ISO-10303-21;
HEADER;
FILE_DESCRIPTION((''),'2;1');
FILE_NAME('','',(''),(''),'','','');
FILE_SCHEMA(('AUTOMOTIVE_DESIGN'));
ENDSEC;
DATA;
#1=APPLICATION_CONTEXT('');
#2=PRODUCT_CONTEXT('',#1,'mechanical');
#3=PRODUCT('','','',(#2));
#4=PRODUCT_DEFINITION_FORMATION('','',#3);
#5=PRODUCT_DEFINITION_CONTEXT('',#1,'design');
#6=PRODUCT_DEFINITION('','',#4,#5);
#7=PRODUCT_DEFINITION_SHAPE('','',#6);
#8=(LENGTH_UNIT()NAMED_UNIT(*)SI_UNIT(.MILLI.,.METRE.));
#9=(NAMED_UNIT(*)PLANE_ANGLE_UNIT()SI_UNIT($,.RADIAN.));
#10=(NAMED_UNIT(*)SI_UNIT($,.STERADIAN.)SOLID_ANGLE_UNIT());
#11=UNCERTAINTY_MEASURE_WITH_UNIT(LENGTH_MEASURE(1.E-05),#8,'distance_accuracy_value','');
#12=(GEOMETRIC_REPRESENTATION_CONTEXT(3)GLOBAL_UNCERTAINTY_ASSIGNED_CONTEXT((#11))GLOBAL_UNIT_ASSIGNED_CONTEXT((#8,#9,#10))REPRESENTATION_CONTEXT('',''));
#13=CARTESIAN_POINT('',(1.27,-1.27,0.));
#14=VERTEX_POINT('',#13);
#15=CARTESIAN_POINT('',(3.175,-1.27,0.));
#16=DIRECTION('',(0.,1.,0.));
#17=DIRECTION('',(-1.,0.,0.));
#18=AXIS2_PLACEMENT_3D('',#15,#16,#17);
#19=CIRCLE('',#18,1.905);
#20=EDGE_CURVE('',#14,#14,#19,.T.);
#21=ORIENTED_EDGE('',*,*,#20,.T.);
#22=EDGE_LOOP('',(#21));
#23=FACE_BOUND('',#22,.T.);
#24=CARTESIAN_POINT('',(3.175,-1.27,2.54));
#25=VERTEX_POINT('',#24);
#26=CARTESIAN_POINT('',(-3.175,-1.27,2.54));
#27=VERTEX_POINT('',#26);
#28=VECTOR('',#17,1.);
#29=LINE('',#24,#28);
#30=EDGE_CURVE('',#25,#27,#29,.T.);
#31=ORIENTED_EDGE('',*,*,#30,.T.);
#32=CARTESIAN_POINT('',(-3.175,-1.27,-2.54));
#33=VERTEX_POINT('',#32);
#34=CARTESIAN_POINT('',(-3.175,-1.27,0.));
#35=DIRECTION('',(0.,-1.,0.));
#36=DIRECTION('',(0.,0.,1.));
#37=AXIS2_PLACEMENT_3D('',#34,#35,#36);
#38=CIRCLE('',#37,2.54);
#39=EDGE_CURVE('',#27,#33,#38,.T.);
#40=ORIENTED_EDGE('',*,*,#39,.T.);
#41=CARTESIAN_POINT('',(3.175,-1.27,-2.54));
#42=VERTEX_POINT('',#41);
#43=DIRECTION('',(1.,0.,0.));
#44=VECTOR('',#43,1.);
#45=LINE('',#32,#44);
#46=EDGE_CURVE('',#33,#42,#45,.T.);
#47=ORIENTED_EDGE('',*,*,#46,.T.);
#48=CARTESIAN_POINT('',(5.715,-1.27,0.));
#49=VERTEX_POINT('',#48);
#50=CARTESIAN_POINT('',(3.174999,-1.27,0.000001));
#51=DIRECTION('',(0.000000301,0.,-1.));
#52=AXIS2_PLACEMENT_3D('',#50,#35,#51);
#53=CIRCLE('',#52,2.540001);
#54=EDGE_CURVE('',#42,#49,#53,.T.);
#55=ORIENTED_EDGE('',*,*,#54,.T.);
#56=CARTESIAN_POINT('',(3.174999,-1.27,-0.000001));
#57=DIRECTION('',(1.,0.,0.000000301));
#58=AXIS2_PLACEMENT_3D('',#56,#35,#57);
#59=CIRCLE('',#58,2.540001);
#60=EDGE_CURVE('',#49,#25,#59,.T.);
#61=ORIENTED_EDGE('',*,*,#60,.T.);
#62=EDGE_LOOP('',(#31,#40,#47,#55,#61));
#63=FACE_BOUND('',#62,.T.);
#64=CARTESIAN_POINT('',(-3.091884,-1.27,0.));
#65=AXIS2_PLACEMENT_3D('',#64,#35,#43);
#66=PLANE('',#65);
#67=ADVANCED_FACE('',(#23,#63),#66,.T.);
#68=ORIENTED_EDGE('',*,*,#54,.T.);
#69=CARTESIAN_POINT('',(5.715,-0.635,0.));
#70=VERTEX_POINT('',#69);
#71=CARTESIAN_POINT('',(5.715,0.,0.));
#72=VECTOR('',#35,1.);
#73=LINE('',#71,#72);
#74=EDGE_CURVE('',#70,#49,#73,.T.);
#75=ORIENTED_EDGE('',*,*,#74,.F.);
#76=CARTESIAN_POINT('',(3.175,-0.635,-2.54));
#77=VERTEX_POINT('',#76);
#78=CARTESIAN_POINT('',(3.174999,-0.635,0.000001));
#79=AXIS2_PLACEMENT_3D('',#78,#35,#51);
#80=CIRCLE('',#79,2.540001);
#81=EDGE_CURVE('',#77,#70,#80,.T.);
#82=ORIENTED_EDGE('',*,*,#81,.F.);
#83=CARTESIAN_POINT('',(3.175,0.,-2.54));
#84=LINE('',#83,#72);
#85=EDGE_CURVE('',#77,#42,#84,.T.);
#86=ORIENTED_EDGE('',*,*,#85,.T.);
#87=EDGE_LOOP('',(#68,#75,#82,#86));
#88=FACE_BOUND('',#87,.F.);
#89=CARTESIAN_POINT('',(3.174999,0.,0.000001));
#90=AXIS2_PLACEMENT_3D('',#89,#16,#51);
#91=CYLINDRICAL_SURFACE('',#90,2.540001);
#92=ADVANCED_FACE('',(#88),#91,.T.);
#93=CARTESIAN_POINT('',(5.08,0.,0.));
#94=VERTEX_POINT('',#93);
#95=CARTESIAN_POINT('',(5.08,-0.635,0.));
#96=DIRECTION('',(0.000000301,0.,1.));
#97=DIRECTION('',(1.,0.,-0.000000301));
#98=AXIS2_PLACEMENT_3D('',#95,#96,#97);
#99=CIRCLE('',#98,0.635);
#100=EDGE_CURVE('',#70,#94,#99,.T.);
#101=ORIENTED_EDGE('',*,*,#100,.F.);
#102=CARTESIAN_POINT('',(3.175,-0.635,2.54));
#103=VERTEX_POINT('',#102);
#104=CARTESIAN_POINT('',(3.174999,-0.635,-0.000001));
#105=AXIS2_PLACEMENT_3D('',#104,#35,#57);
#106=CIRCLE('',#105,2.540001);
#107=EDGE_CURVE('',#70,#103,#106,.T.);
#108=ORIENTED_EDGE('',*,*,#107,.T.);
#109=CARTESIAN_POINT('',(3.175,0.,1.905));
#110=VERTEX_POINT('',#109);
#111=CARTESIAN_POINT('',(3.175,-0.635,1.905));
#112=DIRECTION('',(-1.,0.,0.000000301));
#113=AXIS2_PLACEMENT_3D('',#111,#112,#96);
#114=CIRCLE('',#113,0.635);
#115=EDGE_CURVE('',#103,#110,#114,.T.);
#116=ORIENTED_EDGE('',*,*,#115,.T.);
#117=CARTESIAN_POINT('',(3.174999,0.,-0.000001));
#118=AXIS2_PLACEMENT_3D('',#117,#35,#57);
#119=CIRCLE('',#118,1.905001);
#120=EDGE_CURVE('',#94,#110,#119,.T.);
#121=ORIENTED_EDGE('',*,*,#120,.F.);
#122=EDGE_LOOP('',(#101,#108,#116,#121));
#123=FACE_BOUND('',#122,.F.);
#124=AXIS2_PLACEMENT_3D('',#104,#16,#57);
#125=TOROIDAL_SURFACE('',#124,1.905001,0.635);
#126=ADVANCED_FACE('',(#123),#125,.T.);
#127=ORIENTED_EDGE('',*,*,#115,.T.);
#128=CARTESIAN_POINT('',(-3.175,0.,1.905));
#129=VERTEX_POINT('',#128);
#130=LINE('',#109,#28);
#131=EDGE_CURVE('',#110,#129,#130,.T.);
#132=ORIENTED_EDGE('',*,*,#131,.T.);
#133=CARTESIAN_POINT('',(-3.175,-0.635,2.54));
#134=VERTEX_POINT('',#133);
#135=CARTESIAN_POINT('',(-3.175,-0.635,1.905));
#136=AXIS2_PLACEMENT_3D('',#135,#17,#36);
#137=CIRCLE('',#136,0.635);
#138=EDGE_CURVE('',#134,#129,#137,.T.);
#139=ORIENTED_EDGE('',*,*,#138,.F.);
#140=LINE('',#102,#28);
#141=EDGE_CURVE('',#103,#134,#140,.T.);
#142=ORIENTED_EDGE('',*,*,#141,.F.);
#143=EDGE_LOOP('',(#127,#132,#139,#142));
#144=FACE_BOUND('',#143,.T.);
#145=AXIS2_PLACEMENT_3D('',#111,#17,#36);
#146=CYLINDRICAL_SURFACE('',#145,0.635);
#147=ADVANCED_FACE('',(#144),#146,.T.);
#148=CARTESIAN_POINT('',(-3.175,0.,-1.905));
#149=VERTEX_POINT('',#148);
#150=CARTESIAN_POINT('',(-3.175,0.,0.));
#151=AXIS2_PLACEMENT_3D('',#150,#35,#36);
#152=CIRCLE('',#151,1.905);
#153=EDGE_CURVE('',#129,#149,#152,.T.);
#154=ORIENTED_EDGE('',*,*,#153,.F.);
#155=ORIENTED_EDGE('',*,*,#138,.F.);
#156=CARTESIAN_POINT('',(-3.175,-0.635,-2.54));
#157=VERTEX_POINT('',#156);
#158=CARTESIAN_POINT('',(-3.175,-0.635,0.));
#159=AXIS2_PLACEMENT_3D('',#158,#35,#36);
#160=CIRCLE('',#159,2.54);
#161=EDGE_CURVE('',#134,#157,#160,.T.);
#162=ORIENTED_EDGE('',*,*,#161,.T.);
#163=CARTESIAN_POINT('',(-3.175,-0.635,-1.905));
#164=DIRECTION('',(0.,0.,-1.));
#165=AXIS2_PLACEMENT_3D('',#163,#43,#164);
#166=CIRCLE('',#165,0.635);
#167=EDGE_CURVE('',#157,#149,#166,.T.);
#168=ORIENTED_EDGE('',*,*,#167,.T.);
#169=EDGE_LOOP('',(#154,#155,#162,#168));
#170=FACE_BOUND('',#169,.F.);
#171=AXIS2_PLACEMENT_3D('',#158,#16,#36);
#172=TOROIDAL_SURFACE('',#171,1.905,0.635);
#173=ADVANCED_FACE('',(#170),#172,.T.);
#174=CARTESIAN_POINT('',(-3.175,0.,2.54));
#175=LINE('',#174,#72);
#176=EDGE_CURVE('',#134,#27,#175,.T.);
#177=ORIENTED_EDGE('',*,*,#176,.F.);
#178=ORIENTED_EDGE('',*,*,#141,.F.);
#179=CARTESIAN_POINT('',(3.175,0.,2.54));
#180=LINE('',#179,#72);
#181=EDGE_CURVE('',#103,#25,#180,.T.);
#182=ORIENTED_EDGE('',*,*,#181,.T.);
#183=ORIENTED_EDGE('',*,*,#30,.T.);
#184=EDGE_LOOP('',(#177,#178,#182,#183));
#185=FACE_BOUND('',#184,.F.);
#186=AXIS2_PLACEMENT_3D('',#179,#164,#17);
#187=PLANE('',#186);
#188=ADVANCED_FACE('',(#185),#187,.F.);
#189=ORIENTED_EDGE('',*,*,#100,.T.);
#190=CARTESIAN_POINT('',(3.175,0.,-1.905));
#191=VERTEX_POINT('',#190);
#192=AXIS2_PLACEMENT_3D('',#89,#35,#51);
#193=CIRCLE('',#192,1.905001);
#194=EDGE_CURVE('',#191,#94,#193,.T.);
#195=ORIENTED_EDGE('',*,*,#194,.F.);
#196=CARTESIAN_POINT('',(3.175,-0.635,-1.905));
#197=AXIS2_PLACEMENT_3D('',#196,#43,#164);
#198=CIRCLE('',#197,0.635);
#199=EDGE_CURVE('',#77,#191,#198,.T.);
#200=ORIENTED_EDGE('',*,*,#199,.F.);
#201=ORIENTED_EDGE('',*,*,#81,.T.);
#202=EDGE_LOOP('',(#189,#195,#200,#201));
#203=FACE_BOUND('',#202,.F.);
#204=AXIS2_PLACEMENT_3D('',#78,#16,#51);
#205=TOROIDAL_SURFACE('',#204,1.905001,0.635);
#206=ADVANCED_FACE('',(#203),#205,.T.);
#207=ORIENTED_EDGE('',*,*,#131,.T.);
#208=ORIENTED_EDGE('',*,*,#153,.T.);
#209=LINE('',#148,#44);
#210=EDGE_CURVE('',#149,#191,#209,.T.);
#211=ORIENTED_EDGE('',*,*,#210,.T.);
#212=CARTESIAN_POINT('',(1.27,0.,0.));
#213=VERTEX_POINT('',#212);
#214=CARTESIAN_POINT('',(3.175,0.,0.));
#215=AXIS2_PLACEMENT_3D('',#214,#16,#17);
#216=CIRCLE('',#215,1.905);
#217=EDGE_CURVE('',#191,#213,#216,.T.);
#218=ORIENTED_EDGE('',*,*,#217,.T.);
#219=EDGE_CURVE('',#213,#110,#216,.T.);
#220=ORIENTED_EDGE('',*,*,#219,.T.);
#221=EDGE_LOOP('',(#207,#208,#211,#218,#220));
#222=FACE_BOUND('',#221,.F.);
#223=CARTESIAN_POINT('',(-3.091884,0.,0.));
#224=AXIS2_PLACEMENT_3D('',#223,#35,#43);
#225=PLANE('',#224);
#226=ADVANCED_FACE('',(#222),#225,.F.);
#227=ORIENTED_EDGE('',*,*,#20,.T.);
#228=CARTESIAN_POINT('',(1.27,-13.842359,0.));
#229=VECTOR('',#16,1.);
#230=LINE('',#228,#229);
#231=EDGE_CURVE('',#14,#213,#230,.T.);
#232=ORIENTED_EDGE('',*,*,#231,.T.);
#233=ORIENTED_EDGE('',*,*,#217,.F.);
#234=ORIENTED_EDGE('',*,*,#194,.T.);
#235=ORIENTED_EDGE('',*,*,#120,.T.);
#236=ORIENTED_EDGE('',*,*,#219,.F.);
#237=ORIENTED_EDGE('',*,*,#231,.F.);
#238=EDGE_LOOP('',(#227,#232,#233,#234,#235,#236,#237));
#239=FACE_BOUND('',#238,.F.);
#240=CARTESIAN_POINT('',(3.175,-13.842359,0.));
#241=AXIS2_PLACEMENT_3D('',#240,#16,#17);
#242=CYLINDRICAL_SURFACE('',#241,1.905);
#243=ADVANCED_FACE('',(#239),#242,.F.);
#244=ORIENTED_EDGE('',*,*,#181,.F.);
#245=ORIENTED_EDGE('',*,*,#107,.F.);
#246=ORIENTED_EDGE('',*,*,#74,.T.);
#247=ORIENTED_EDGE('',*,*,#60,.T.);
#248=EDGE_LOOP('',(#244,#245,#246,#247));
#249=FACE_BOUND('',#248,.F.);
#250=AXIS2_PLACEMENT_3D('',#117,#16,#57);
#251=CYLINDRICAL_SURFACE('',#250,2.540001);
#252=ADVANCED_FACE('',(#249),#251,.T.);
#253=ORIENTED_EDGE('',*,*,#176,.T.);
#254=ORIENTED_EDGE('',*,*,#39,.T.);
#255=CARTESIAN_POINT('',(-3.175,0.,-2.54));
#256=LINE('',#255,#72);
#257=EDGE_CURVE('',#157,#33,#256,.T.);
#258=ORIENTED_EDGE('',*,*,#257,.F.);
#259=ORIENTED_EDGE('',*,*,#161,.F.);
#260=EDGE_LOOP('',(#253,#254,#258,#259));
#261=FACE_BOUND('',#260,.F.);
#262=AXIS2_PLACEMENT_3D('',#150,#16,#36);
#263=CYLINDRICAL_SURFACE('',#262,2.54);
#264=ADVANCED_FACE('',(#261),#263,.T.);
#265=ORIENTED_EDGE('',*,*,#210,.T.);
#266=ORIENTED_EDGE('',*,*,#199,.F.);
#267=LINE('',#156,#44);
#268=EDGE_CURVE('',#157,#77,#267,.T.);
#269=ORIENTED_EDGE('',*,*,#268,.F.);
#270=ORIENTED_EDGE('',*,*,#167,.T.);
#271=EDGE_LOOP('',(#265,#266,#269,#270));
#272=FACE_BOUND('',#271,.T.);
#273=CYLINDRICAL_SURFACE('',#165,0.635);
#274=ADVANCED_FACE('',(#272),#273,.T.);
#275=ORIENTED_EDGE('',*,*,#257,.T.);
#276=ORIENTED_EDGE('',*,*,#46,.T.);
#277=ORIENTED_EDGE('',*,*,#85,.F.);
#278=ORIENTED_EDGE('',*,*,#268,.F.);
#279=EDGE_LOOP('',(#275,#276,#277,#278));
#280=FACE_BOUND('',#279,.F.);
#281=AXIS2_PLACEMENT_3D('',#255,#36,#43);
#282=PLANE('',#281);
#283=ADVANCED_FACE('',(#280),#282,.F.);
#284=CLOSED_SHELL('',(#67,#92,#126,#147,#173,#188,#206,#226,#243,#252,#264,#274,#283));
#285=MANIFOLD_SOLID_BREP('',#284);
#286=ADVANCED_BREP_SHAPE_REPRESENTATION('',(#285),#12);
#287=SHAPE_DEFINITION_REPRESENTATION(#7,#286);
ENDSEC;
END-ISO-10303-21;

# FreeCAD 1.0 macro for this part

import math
import FreeCAD as App
import Part
import Sketcher

V = App.Vector
Q = App.Units.Quantity


def edges_at(feature, points):
    """Names of the edges that pass closest to the given points."""
    edges = feature.Shape.Edges
    near = lambda p: min(range(len(edges)), key=lambda i: edges[i].distToShape(Part.Vertex(*p))[0])
    return sorted({f"Edge{near(p) + 1}" for p in points})

doc = App.newDocument("Part")
body = doc.addObject("PartDesign::Body", "Body")

# Sketch on XZ plane
sketch1 = doc.addObject("Sketcher::SketchObject", "Sketch")
body.addObject(sketch1)
sketch1.AttachmentSupport = (doc.XZ_Plane, [""])
sketch1.MapMode = "FlatFace"
sketch1.addGeometry([
    Part.ArcOfCircle(Part.Circle(V(-3.2, 0, 0), V(0, 0, 1), 2.5), math.radians(90), math.radians(270)),  # 0
    Part.LineSegment(V(-3.2, -2.5, 0), V(3.2, -2.5, 0)),  # 1
    Part.ArcOfCircle(Part.Circle(V(3.2, 0, 0), V(0, 0, 1), 2.5), math.radians(-90), math.radians(0)),  # 2
    Part.ArcOfCircle(Part.Circle(V(3.2, 0, 0), V(0, 0, 1), 2.5), math.radians(0), math.radians(90)),  # 3
    Part.LineSegment(V(3.2, 2.5, 0), V(-3.2, 2.5, 0)),  # 4
], False)
sketch1.addConstraint([
    Sketcher.Constraint("Tangent", 0, 2, 1, 1),
    Sketcher.Constraint("Tangent", 1, 2, 2, 1),
    Sketcher.Constraint("Tangent", 2, 2, 3, 1),
    Sketcher.Constraint("Tangent", 3, 2, 4, 1),
    Sketcher.Constraint("Tangent", 4, 2, 0, 1),
    Sketcher.Constraint("Horizontal", 1),
    Sketcher.Constraint("Horizontal", 4),
    Sketcher.Constraint("Equal", 0, 2),
    Sketcher.Constraint("Symmetric", 0, 3, 2, 3, -1, 1),
    Sketcher.Constraint("PointOnObject", 2, 2, -1),
    Sketcher.Constraint("Radius", 0, Q("0.1 in")),
    Sketcher.Constraint("DistanceX", 1, 1, 1, 2, Q("0.25 in")),
])
pad1 = doc.addObject("PartDesign::Pad", "Pad")
body.addObject(pad1)
pad1.Profile = sketch1
pad1.Length = Q("0.05 in")
doc.recompute()

fillet = doc.addObject("PartDesign::Fillet", "Fillet")
body.addObject(fillet)
fillet.Base = (pad1, edges_at(pad1, [(0, 0, -2.54)]))
fillet.Radius = Q("0.025 in")

# Sketch on XZ plane
sketch2 = doc.addObject("Sketcher::SketchObject", "Sketch001")
body.addObject(sketch2)
sketch2.AttachmentSupport = (doc.XZ_Plane, [""])
sketch2.MapMode = "FlatFace"
sketch2.AttachmentOffset = App.Placement(V(0, 0, 0.05 * 25.4), App.Rotation())
sketch2.addGeometry(Part.Circle(V(3.2, 0, 0), V(0, 0, 1), 1.9), False)
sketch2.addConstraint([
    Sketcher.Constraint("PointOnObject", 0, 3, -1),
    Sketcher.Constraint("Diameter", 0, Q("0.15 in")),
    Sketcher.Constraint("DistanceX", -1, 1, 0, 3, Q("0.125 in")),
])
doc.recompute()
hole = doc.addObject("PartDesign::Hole", "Hole")
body.addObject(hole)
hole.Profile = sketch2
hole.ThreadType = "None"
hole.Diameter = Q("0.15 in")
hole.DepthType = "ThroughAll"

doc.recompute()
